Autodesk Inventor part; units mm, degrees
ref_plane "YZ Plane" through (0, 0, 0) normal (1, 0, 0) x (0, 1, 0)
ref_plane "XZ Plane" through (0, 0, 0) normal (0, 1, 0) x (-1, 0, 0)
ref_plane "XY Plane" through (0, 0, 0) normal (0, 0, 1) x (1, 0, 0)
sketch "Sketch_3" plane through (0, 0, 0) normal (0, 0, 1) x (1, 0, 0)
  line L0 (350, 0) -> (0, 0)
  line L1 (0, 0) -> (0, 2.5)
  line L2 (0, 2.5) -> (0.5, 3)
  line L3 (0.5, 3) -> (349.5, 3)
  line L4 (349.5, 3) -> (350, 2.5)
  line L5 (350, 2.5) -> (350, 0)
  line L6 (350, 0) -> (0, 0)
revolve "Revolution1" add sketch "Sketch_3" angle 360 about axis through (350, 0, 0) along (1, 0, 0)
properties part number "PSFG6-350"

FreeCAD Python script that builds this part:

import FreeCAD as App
import Part
import Sketcher

V = App.Vector
Q = App.Units.Quantity


def add_polygon(sketch, points):
    """Adds a closed chain of lines whose ends are joined by coincident constraints."""
    first, n = sketch.GeometryCount, len(points)
    for a, b in zip(points, points[1:] + points[:1]):
        sketch.addGeometry(Part.LineSegment(App.Vector(*a, 0), App.Vector(*b, 0)), False)
    for i in range(n):
        sketch.addConstraint(Sketcher.Constraint("Coincident", first + i, 2, first + (i + 1) % n, 1))

doc = App.newDocument("Part")
body = doc.addObject("PartDesign::Body", "Body")

# Sketch on XY plane
sketch1 = body.newObject("Sketcher::SketchObject", "Sketch")
sketch1.AttachmentSupport = (doc.getObject("XY_Plane"), [""])
sketch1.MapMode = "FlatFace"
add_polygon(sketch1, [(0, 0), (350, 0), (350, 2.5), (349.5, 3), (0.5, 3), (0, 2.5)])  # lines 0-5
sketch1.addConstraint(Sketcher.Constraint("Horizontal", 0))
sketch1.addConstraint(Sketcher.Constraint("Vertical", 1))
sketch1.addConstraint(Sketcher.Constraint("Horizontal", 3))
sketch1.addConstraint(Sketcher.Constraint("Vertical", 5))
sketch1.addConstraint(Sketcher.Constraint("Coincident", 5, 2, -1, 1))
sketch1.addConstraint(Sketcher.Constraint("Perpendicular", 2, 4))
sketch1.addConstraint(Sketcher.Constraint("Horizontal", 1, 2, 4, 2))
sketch1.addConstraint(Sketcher.Constraint("Equal", 2, 4))
sketch1.addConstraint(Sketcher.Constraint("DistanceX", 0, 1, 0, 2, Q("350 mm")))
sketch1.addConstraint(Sketcher.Constraint("DistanceX", 3, 2, 3, 1, Q("349 mm")))
sketch1.addConstraint(Sketcher.Constraint("DistanceY", 1, 1, 1, 2, Q("2.5 mm")))
revolution = body.newObject("PartDesign::Revolution", "Revolution")
revolution.Profile = sketch1
revolution.ReferenceAxis = (sketch1, ["H_Axis"])
revolution.Angle = 360

doc.recompute()
